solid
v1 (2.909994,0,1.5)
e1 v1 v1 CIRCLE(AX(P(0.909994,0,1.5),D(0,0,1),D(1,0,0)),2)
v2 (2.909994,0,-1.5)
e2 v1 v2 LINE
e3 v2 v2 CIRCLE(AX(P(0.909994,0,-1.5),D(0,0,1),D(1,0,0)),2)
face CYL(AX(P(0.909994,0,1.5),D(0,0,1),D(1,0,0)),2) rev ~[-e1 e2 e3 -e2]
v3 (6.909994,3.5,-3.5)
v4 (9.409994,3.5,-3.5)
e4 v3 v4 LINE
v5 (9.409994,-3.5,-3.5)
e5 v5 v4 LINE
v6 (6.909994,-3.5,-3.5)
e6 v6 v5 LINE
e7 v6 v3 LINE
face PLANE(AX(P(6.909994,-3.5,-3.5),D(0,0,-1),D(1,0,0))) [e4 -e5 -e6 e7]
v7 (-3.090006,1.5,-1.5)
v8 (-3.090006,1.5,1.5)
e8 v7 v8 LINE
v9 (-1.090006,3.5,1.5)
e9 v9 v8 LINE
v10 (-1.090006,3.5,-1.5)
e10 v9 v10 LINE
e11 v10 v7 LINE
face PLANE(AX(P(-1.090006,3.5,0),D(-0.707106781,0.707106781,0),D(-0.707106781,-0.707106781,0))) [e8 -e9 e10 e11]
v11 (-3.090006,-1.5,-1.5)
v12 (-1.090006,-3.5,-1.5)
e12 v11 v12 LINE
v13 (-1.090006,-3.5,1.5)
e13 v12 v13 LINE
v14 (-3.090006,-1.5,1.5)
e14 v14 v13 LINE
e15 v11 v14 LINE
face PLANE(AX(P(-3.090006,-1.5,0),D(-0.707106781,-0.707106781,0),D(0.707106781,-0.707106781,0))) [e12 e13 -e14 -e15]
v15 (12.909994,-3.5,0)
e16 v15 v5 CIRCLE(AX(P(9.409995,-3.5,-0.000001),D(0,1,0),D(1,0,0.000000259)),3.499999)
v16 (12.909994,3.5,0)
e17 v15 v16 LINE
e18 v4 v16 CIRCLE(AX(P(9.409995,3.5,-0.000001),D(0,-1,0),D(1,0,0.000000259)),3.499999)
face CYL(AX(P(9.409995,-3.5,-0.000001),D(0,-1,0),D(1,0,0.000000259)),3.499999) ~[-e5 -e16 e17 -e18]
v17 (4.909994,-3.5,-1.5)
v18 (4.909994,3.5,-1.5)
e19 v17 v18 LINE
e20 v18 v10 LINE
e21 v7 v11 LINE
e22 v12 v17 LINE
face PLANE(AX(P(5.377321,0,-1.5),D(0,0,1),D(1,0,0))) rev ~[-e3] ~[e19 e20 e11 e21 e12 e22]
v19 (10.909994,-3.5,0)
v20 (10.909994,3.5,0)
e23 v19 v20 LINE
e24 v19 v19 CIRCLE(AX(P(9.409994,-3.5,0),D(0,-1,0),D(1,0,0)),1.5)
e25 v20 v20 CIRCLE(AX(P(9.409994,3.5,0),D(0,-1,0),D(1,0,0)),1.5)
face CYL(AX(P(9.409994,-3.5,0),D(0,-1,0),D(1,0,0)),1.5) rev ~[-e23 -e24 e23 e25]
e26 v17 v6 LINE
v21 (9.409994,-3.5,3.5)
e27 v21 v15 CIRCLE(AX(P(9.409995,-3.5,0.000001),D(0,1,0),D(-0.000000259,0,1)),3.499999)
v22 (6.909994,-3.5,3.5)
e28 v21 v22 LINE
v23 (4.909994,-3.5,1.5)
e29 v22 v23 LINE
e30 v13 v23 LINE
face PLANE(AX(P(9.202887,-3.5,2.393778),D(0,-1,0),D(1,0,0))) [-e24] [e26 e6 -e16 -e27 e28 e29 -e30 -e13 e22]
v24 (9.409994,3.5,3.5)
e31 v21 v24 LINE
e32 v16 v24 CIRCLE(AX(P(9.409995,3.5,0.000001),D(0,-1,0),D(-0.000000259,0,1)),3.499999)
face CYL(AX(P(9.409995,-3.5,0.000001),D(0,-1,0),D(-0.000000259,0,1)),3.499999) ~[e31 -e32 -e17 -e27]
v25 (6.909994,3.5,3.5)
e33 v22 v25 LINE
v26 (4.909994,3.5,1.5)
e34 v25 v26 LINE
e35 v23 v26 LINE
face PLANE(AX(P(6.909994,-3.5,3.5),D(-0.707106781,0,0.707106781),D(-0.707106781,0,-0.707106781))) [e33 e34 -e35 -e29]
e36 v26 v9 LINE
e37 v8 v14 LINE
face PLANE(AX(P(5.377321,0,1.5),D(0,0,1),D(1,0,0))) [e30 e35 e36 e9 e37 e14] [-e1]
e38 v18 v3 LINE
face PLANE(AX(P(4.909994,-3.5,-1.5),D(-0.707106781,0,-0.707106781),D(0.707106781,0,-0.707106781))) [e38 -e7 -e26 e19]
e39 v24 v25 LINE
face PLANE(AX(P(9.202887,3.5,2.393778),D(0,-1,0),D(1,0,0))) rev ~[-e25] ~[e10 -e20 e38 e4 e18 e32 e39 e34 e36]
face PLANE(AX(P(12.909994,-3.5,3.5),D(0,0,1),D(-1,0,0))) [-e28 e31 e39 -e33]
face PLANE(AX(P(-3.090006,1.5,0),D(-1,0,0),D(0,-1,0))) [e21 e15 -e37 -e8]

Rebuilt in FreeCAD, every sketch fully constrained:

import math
import FreeCAD as App
import Part
import Sketcher
from FreeCAD import Vector
Q = App.Units.Quantity

doc = App.newDocument("Part")
params = doc.addObject("Spreadsheet::Sheet", "Params")
for row, (alias, value) in enumerate([
    ("sketch1_width", "14 mm"),
    ("sketch1_height", "3 mm"),
    ("sketch1_height2", "7 mm"),
    ("pad1_length", "3 mm"),
    ("sketch2_width", "8 mm"),
    ("sketch2_width2", "6 mm"),
    ("pad2_length", "7 mm"),
    ("sketch3_diameter", "3 mm"),
    ("sketch4_diameter", "4 mm"),
    ("sketch5_radius", "3.499999 mm"),
], start=1):
    params.set(f"A{row}", alias)
    params.set(f"B{row}", "=" + value)
    params.setAlias(f"B{row}", alias)

body = doc.addObject("PartDesign::Body", "Body")

# Sketch on XY plane
sketch1 = doc.addObject("Sketcher::SketchObject", "Sketch")
body.addObject(sketch1)
sketch1.AttachmentSupport = (doc.XY_Plane, [""])
sketch1.MapMode = "FlatFace"
sketch1.addGeometry(Part.LineSegment(Vector(-1.1, 3.5, 0), Vector(-3.1, 1.5, 0)), False)
sketch1.addGeometry(Part.LineSegment(Vector(-3.1, 1.5, 0), Vector(-3.1, -1.5, 0)), False)
sketch1.addGeometry(Part.LineSegment(Vector(-3.1, -1.5, 0), Vector(-1.1, -3.5, 0)), False)
sketch1.addGeometry(Part.LineSegment(Vector(-1.1, -3.5, 0), Vector(12.9, -3.5, 0)), False)
sketch1.addGeometry(Part.LineSegment(Vector(12.9, -3.5, 0), Vector(12.9, 3.5, 0)), False)
sketch1.addGeometry(Part.LineSegment(Vector(12.9, 3.5, 0), Vector(-1.1, 3.5, 0)), False)
sketch1.addConstraint(Sketcher.Constraint("Coincident", 0, 2, 1, 1))
sketch1.addConstraint(Sketcher.Constraint("Coincident", 1, 2, 2, 1))
sketch1.addConstraint(Sketcher.Constraint("Coincident", 2, 2, 3, 1))
sketch1.addConstraint(Sketcher.Constraint("Coincident", 3, 2, 4, 1))
sketch1.addConstraint(Sketcher.Constraint("Coincident", 4, 2, 5, 1))
sketch1.addConstraint(Sketcher.Constraint("Coincident", 5, 2, 0, 1))
sketch1.addConstraint(Sketcher.Constraint("Vertical", 1))
sketch1.addConstraint(Sketcher.Constraint("Horizontal", 3))
sketch1.addConstraint(Sketcher.Constraint("Vertical", 4))
sketch1.addConstraint(Sketcher.Constraint("Horizontal", 5))
sketch1.addConstraint(Sketcher.Constraint("Symmetric", 2, 2, 5, 2, -1))
sketch1.addConstraint(Sketcher.Constraint("Perpendicular", 0, 2))
sketch1.addConstraint(Sketcher.Constraint("Equal", 0, 2))
sketch1.addConstraint(Sketcher.Constraint("DistanceX", 3, 1, 3, 2, Q("14 mm")))
sketch1.addConstraint(Sketcher.Constraint("DistanceY", 1, 2, 1, 1, Q("3 mm")))
sketch1.addConstraint(Sketcher.Constraint("DistanceY", 4, 1, 4, 2, Q("7 mm")))
sketch1.addConstraint(Sketcher.Constraint("DistanceX", 0, 2, -1, 1, Q("3.090006 mm")))
sketch1.setExpression("Constraints[13]", "Params.sketch1_width")
sketch1.setExpression("Constraints[14]", "Params.sketch1_height")
sketch1.setExpression("Constraints[15]", "Params.sketch1_height2")
pad1 = doc.addObject("PartDesign::Pad", "Pad")
body.addObject(pad1)
pad1.Profile = sketch1
pad1.setExpression("Length", "Params.pad1_length")
pad1.Midplane = True

# Sketch on XZ plane
sketch2 = doc.addObject("Sketcher::SketchObject", "Sketch001")
body.addObject(sketch2)
sketch2.AttachmentSupport = (doc.XZ_Plane, [""])
sketch2.MapMode = "FlatFace"
sketch2.AttachmentOffset = App.Placement(Vector(0, 0, 3.5), App.Rotation())
sketch2.addGeometry(Part.LineSegment(Vector(6.9, 3.5, 0), Vector(4.9, 1.5, 0)), False)
sketch2.addGeometry(Part.LineSegment(Vector(4.9, 1.5, 0), Vector(12.9, 1.5, 0)), False)
sketch2.addGeometry(Part.LineSegment(Vector(12.9, 1.5, 0), Vector(12.9, 3.5, 0)), False)
sketch2.addGeometry(Part.LineSegment(Vector(12.9, 3.5, 0), Vector(6.9, 3.5, 0)), False)
sketch2.addGeometry(Part.LineSegment(Vector(12.9, -1.5, 0), Vector(4.9, -1.5, 0)), False)
sketch2.addGeometry(Part.LineSegment(Vector(4.9, -1.5, 0), Vector(6.9, -3.5, 0)), False)
sketch2.addGeometry(Part.LineSegment(Vector(6.9, -3.5, 0), Vector(12.9, -3.5, 0)), False)
sketch2.addGeometry(Part.LineSegment(Vector(12.9, -3.5, 0), Vector(12.9, -1.5, 0)), False)
sketch2.addConstraint(Sketcher.Constraint("Coincident", 0, 2, 1, 1))
sketch2.addConstraint(Sketcher.Constraint("Coincident", 1, 2, 2, 1))
sketch2.addConstraint(Sketcher.Constraint("Coincident", 2, 2, 3, 1))
sketch2.addConstraint(Sketcher.Constraint("Coincident", 3, 2, 0, 1))
sketch2.addConstraint(Sketcher.Constraint("Coincident", 4, 2, 5, 1))
sketch2.addConstraint(Sketcher.Constraint("Coincident", 5, 2, 6, 1))
sketch2.addConstraint(Sketcher.Constraint("Coincident", 6, 2, 7, 1))
sketch2.addConstraint(Sketcher.Constraint("Coincident", 7, 2, 4, 1))
sketch2.addConstraint(Sketcher.Constraint("Horizontal", 1))
sketch2.addConstraint(Sketcher.Constraint("Vertical", 2))
sketch2.addConstraint(Sketcher.Constraint("Horizontal", 3))
sketch2.addConstraint(Sketcher.Constraint("Horizontal", 4))
sketch2.addConstraint(Sketcher.Constraint("Horizontal", 6))
sketch2.addConstraint(Sketcher.Constraint("Vertical", 7))
sketch2.addConstraint(Sketcher.Constraint("Symmetric", 0, 2, 4, 2, -1))
sketch2.addConstraint(Sketcher.Constraint("Symmetric", 3, 2, 5, 2, -1))
sketch2.addConstraint(Sketcher.Constraint("Perpendicular", 0, 5))
sketch2.addConstraint(Sketcher.Constraint("Vertical", 2, 2, 6, 2))
sketch2.addConstraint(Sketcher.Constraint("DistanceX", 1, 1, 1, 2, Q("8 mm")))
sketch2.addConstraint(Sketcher.Constraint("DistanceX", 3, 2, 3, 1, Q("6 mm")))
sketch2.addConstraint(Sketcher.Constraint("DistanceY", 4, 2, 0, 2, Q("3 mm")))
sketch2.addConstraint(Sketcher.Constraint("DistanceX", -1, 1, 0, 2, Q("4.909994 mm")))
sketch2.setExpression("Constraints[18]", "Params.sketch2_width")
sketch2.setExpression("Constraints[19]", "Params.sketch2_width2")
pad2 = doc.addObject("PartDesign::Pad", "Pad001")
body.addObject(pad2)
pad2.Profile = sketch2
pad2.setExpression("Length", "Params.pad2_length")
pad2.Reversed = True

# Sketch on XZ plane
sketch3 = doc.addObject("Sketcher::SketchObject", "Sketch002")
body.addObject(sketch3)
sketch3.AttachmentSupport = (doc.XZ_Plane, [""])
sketch3.MapMode = "FlatFace"
sketch3.AttachmentOffset = App.Placement(Vector(0, 0, 3.5), App.Rotation())
sketch3.addGeometry(Part.Circle(Vector(9.4, 0, 0), Vector(0, 0, 1), 1.5), False)
sketch3.addConstraint(Sketcher.Constraint("PointOnObject", 0, 3, -1))
sketch3.addConstraint(Sketcher.Constraint("Diameter", 0, Q("3 mm")))
sketch3.addConstraint(Sketcher.Constraint("DistanceX", -1, 1, 0, 3, Q("9.409994 mm")))
sketch3.setExpression("Constraints[1]", "Params.sketch3_diameter")
pocket1 = doc.addObject("PartDesign::Pocket", "Pocket")
body.addObject(pocket1)
pocket1.Profile = sketch3
pocket1.Type = "ThroughAll"

# Sketch on XY plane
sketch4 = doc.addObject("Sketcher::SketchObject", "Sketch003")
body.addObject(sketch4)
sketch4.AttachmentSupport = (doc.XY_Plane, [""])
sketch4.MapMode = "FlatFace"
sketch4.AttachmentOffset = App.Placement(Vector(0, 0, 1.5), App.Rotation())
sketch4.addGeometry(Part.Circle(Vector(0.9, 0, 0), Vector(0, 0, 1), 2), False)
sketch4.addConstraint(Sketcher.Constraint("PointOnObject", 0, 3, -1))
sketch4.addConstraint(Sketcher.Constraint("Diameter", 0, Q("4 mm")))
sketch4.addConstraint(Sketcher.Constraint("DistanceX", -1, 1, 0, 3, Q("0.909994 mm")))
sketch4.setExpression("Constraints[1]", "Params.sketch4_diameter")
pocket2 = doc.addObject("PartDesign::Pocket", "Pocket001")
body.addObject(pocket2)
pocket2.Profile = sketch4
pocket2.Type = "ThroughAll"

# Sketch on XZ plane
sketch5 = doc.addObject("Sketcher::SketchObject", "Sketch004")
body.addObject(sketch5)
sketch5.AttachmentSupport = (doc.XZ_Plane, [""])
sketch5.MapMode = "FlatFace"
sketch5.AttachmentOffset = App.Placement(Vector(0, 0, 3.5), App.Rotation())
sketch5.addGeometry(Part.ArcOfCircle(Part.Circle(Vector(9.4, 0, 0), Vector(0, 0, 1), 3.5), math.radians(0), math.radians(90)), False)
sketch5.addGeometry(Part.LineSegment(Vector(12.9, 0, 0), Vector(12.9, 3.5, 0)), False)
sketch5.addGeometry(Part.LineSegment(Vector(12.9, 3.5, 0), Vector(9.4, 3.5, 0)), False)
sketch5.addGeometry(Part.ArcOfCircle(Part.Circle(Vector(9.4, 0, 0), Vector(0, 0, 1), 3.5), math.radians(-90), math.radians(0)), False)
sketch5.addGeometry(Part.LineSegment(Vector(9.4, -3.5, 0), Vector(12.9, -3.5, 0)), False)
sketch5.addGeometry(Part.LineSegment(Vector(12.9, -3.5, 0), Vector(12.9, 0, 0)), False)
sketch5.addConstraint(Sketcher.Constraint("Tangent", 0, 1, 1, 1))
sketch5.addConstraint(Sketcher.Constraint("Coincident", 1, 2, 2, 1))
sketch5.addConstraint(Sketcher.Constraint("Tangent", 2, 2, 0, 2))
sketch5.addConstraint(Sketcher.Constraint("Tangent", 3, 1, 4, 1))
sketch5.addConstraint(Sketcher.Constraint("Coincident", 4, 2, 5, 1))
sketch5.addConstraint(Sketcher.Constraint("Tangent", 5, 2, 3, 2))
sketch5.addConstraint(Sketcher.Constraint("Vertical", 1))
sketch5.addConstraint(Sketcher.Constraint("Horizontal", 2))
sketch5.addConstraint(Sketcher.Constraint("Horizontal", 4))
sketch5.addConstraint(Sketcher.Constraint("Vertical", 5))
sketch5.addConstraint(Sketcher.Constraint("Coincident", 3, 3, 0, 3))
sketch5.addConstraint(Sketcher.Constraint("Equal", 0, 3))
sketch5.addConstraint(Sketcher.Constraint("PointOnObject", 0, 3, -1))
sketch5.addConstraint(Sketcher.Constraint("Radius", 0, Q("3.499999 mm")))
sketch5.addConstraint(Sketcher.Constraint("DistanceX", -1, 1, 0, 3, Q("9.409995 mm")))
sketch5.setExpression("Constraints[13]", "Params.sketch5_radius")
pocket3 = doc.addObject("PartDesign::Pocket", "Pocket002")
body.addObject(pocket3)
pocket3.Profile = sketch5
pocket3.Type = "ThroughAll"

doc.recompute()
